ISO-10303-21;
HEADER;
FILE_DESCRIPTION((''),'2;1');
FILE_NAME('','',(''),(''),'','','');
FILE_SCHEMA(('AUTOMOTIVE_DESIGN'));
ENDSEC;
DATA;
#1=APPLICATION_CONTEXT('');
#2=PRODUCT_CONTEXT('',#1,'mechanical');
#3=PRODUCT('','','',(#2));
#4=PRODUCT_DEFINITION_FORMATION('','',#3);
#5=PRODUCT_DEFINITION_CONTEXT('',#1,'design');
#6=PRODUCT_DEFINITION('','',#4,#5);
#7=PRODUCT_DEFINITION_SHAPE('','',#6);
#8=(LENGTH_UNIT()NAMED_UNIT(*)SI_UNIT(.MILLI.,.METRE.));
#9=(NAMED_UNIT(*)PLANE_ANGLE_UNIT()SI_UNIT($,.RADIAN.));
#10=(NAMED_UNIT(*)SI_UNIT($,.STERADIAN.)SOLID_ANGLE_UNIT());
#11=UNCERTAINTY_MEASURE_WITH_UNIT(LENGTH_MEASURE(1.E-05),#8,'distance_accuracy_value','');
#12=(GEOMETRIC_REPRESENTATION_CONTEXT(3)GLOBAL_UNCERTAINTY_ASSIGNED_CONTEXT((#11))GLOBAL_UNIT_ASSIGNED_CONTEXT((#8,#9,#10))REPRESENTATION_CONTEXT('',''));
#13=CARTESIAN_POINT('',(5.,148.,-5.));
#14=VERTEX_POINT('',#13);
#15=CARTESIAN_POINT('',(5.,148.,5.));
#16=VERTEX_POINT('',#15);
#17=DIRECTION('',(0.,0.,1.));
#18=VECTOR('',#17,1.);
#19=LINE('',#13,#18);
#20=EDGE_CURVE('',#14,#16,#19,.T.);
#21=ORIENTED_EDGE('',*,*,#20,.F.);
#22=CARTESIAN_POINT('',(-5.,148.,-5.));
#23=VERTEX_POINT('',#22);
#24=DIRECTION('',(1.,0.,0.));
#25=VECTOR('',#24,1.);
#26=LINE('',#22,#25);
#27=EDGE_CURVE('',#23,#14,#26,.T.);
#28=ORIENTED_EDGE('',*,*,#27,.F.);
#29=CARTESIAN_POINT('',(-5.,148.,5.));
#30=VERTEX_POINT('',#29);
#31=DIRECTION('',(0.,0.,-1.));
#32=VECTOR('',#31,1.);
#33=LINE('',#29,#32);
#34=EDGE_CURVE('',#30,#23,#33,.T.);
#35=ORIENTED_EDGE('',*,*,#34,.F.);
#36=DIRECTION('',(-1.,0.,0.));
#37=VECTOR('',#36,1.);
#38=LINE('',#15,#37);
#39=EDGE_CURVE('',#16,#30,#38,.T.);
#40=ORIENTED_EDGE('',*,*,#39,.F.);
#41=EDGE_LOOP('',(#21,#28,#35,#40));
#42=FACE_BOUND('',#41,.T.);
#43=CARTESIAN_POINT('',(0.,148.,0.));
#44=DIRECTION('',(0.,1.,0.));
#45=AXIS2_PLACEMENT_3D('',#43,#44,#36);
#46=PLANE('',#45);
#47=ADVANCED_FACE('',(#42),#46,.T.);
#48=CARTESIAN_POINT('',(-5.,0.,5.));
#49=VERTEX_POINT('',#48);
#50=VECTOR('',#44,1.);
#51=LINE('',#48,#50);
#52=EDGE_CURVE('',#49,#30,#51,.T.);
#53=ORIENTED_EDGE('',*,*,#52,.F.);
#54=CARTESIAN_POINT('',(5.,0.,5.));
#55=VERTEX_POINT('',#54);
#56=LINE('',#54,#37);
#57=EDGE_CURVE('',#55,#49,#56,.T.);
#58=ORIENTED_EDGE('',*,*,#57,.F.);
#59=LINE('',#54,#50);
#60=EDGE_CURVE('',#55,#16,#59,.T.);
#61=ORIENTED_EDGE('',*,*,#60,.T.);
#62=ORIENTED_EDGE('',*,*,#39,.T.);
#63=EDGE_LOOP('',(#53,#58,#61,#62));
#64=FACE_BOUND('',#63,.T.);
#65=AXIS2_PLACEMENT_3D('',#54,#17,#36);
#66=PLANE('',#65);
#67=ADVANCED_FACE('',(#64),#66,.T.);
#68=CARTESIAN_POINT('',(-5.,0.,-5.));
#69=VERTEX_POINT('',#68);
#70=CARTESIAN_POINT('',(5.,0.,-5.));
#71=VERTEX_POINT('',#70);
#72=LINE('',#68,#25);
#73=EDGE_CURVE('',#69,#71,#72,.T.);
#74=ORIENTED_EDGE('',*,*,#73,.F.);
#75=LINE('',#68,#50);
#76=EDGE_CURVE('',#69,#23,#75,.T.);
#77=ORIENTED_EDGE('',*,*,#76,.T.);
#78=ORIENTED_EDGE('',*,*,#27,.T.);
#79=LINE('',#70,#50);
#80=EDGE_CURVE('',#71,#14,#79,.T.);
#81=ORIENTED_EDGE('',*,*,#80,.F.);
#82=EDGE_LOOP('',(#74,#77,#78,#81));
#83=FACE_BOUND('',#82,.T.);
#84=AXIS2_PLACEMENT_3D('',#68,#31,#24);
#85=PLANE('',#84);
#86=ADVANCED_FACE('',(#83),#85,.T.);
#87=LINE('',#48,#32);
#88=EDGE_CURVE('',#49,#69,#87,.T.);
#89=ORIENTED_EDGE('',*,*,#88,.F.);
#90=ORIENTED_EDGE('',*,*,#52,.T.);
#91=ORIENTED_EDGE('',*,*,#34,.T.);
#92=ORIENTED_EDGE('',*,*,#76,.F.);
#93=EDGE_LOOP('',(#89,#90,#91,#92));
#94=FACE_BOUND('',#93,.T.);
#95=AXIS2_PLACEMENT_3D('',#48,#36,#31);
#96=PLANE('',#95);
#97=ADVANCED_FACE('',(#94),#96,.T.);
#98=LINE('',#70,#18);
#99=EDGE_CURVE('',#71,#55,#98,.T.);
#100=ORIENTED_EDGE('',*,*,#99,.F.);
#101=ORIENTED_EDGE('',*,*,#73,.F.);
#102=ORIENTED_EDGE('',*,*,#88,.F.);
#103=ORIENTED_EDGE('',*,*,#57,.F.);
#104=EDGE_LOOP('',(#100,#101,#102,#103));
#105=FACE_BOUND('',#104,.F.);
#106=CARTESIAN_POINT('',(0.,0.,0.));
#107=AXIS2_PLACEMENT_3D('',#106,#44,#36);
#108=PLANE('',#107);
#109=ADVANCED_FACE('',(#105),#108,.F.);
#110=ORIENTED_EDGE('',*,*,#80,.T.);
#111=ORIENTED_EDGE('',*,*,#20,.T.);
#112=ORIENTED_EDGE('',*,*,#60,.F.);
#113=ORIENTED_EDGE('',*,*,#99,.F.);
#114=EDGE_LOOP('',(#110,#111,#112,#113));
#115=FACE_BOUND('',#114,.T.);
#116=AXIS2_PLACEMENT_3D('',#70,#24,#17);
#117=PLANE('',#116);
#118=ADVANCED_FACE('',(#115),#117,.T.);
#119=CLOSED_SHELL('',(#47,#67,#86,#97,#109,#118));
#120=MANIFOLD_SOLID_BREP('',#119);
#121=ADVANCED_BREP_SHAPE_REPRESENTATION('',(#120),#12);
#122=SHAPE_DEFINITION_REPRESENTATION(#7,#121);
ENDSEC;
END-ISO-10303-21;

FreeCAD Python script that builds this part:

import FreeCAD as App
import Part
import Sketcher
Q = App.Units.Quantity


def add_polygon(sketch, points):
    """Adds a closed chain of lines whose ends are joined by coincident constraints."""
    first, n = sketch.GeometryCount, len(points)
    for a, b in zip(points, points[1:] + points[:1]):
        sketch.addGeometry(Part.LineSegment(App.Vector(*a, 0), App.Vector(*b, 0)), False)
    for i in range(n):
        sketch.addConstraint(Sketcher.Constraint("Coincident", first + i, 2, first + (i + 1) % n, 1))

doc = App.newDocument("Part")
body = doc.addObject("PartDesign::Body", "Body")

# Sketch on XZ plane
sketch1 = body.newObject("Sketcher::SketchObject", "Sketch")
sketch1.AttachmentSupport = (doc.getObject("XZ_Plane"), [""])
sketch1.MapMode = "FlatFace"
add_polygon(sketch1, [(-5, 5), (5, 5), (5, -5), (-5, -5)])  # lines 0-3
sketch1.addConstraint([
    Sketcher.Constraint("Horizontal", 0),
    Sketcher.Constraint("Vertical", 1),
    Sketcher.Constraint("Horizontal", 2),
    Sketcher.Constraint("Vertical", 3),
    Sketcher.Constraint("Symmetric", 0, 2, 2, 2, -1, 1),
    Sketcher.Constraint("Equal", 2, 1),
    Sketcher.Constraint("DistanceX", 0, 1, 0, 2, Q("10 mm")),
])
pad1 = body.newObject("PartDesign::Pad", "Pad")
pad1.Profile = sketch1
pad1.Length = 148
pad1.Reversed = True

doc.recompute()
